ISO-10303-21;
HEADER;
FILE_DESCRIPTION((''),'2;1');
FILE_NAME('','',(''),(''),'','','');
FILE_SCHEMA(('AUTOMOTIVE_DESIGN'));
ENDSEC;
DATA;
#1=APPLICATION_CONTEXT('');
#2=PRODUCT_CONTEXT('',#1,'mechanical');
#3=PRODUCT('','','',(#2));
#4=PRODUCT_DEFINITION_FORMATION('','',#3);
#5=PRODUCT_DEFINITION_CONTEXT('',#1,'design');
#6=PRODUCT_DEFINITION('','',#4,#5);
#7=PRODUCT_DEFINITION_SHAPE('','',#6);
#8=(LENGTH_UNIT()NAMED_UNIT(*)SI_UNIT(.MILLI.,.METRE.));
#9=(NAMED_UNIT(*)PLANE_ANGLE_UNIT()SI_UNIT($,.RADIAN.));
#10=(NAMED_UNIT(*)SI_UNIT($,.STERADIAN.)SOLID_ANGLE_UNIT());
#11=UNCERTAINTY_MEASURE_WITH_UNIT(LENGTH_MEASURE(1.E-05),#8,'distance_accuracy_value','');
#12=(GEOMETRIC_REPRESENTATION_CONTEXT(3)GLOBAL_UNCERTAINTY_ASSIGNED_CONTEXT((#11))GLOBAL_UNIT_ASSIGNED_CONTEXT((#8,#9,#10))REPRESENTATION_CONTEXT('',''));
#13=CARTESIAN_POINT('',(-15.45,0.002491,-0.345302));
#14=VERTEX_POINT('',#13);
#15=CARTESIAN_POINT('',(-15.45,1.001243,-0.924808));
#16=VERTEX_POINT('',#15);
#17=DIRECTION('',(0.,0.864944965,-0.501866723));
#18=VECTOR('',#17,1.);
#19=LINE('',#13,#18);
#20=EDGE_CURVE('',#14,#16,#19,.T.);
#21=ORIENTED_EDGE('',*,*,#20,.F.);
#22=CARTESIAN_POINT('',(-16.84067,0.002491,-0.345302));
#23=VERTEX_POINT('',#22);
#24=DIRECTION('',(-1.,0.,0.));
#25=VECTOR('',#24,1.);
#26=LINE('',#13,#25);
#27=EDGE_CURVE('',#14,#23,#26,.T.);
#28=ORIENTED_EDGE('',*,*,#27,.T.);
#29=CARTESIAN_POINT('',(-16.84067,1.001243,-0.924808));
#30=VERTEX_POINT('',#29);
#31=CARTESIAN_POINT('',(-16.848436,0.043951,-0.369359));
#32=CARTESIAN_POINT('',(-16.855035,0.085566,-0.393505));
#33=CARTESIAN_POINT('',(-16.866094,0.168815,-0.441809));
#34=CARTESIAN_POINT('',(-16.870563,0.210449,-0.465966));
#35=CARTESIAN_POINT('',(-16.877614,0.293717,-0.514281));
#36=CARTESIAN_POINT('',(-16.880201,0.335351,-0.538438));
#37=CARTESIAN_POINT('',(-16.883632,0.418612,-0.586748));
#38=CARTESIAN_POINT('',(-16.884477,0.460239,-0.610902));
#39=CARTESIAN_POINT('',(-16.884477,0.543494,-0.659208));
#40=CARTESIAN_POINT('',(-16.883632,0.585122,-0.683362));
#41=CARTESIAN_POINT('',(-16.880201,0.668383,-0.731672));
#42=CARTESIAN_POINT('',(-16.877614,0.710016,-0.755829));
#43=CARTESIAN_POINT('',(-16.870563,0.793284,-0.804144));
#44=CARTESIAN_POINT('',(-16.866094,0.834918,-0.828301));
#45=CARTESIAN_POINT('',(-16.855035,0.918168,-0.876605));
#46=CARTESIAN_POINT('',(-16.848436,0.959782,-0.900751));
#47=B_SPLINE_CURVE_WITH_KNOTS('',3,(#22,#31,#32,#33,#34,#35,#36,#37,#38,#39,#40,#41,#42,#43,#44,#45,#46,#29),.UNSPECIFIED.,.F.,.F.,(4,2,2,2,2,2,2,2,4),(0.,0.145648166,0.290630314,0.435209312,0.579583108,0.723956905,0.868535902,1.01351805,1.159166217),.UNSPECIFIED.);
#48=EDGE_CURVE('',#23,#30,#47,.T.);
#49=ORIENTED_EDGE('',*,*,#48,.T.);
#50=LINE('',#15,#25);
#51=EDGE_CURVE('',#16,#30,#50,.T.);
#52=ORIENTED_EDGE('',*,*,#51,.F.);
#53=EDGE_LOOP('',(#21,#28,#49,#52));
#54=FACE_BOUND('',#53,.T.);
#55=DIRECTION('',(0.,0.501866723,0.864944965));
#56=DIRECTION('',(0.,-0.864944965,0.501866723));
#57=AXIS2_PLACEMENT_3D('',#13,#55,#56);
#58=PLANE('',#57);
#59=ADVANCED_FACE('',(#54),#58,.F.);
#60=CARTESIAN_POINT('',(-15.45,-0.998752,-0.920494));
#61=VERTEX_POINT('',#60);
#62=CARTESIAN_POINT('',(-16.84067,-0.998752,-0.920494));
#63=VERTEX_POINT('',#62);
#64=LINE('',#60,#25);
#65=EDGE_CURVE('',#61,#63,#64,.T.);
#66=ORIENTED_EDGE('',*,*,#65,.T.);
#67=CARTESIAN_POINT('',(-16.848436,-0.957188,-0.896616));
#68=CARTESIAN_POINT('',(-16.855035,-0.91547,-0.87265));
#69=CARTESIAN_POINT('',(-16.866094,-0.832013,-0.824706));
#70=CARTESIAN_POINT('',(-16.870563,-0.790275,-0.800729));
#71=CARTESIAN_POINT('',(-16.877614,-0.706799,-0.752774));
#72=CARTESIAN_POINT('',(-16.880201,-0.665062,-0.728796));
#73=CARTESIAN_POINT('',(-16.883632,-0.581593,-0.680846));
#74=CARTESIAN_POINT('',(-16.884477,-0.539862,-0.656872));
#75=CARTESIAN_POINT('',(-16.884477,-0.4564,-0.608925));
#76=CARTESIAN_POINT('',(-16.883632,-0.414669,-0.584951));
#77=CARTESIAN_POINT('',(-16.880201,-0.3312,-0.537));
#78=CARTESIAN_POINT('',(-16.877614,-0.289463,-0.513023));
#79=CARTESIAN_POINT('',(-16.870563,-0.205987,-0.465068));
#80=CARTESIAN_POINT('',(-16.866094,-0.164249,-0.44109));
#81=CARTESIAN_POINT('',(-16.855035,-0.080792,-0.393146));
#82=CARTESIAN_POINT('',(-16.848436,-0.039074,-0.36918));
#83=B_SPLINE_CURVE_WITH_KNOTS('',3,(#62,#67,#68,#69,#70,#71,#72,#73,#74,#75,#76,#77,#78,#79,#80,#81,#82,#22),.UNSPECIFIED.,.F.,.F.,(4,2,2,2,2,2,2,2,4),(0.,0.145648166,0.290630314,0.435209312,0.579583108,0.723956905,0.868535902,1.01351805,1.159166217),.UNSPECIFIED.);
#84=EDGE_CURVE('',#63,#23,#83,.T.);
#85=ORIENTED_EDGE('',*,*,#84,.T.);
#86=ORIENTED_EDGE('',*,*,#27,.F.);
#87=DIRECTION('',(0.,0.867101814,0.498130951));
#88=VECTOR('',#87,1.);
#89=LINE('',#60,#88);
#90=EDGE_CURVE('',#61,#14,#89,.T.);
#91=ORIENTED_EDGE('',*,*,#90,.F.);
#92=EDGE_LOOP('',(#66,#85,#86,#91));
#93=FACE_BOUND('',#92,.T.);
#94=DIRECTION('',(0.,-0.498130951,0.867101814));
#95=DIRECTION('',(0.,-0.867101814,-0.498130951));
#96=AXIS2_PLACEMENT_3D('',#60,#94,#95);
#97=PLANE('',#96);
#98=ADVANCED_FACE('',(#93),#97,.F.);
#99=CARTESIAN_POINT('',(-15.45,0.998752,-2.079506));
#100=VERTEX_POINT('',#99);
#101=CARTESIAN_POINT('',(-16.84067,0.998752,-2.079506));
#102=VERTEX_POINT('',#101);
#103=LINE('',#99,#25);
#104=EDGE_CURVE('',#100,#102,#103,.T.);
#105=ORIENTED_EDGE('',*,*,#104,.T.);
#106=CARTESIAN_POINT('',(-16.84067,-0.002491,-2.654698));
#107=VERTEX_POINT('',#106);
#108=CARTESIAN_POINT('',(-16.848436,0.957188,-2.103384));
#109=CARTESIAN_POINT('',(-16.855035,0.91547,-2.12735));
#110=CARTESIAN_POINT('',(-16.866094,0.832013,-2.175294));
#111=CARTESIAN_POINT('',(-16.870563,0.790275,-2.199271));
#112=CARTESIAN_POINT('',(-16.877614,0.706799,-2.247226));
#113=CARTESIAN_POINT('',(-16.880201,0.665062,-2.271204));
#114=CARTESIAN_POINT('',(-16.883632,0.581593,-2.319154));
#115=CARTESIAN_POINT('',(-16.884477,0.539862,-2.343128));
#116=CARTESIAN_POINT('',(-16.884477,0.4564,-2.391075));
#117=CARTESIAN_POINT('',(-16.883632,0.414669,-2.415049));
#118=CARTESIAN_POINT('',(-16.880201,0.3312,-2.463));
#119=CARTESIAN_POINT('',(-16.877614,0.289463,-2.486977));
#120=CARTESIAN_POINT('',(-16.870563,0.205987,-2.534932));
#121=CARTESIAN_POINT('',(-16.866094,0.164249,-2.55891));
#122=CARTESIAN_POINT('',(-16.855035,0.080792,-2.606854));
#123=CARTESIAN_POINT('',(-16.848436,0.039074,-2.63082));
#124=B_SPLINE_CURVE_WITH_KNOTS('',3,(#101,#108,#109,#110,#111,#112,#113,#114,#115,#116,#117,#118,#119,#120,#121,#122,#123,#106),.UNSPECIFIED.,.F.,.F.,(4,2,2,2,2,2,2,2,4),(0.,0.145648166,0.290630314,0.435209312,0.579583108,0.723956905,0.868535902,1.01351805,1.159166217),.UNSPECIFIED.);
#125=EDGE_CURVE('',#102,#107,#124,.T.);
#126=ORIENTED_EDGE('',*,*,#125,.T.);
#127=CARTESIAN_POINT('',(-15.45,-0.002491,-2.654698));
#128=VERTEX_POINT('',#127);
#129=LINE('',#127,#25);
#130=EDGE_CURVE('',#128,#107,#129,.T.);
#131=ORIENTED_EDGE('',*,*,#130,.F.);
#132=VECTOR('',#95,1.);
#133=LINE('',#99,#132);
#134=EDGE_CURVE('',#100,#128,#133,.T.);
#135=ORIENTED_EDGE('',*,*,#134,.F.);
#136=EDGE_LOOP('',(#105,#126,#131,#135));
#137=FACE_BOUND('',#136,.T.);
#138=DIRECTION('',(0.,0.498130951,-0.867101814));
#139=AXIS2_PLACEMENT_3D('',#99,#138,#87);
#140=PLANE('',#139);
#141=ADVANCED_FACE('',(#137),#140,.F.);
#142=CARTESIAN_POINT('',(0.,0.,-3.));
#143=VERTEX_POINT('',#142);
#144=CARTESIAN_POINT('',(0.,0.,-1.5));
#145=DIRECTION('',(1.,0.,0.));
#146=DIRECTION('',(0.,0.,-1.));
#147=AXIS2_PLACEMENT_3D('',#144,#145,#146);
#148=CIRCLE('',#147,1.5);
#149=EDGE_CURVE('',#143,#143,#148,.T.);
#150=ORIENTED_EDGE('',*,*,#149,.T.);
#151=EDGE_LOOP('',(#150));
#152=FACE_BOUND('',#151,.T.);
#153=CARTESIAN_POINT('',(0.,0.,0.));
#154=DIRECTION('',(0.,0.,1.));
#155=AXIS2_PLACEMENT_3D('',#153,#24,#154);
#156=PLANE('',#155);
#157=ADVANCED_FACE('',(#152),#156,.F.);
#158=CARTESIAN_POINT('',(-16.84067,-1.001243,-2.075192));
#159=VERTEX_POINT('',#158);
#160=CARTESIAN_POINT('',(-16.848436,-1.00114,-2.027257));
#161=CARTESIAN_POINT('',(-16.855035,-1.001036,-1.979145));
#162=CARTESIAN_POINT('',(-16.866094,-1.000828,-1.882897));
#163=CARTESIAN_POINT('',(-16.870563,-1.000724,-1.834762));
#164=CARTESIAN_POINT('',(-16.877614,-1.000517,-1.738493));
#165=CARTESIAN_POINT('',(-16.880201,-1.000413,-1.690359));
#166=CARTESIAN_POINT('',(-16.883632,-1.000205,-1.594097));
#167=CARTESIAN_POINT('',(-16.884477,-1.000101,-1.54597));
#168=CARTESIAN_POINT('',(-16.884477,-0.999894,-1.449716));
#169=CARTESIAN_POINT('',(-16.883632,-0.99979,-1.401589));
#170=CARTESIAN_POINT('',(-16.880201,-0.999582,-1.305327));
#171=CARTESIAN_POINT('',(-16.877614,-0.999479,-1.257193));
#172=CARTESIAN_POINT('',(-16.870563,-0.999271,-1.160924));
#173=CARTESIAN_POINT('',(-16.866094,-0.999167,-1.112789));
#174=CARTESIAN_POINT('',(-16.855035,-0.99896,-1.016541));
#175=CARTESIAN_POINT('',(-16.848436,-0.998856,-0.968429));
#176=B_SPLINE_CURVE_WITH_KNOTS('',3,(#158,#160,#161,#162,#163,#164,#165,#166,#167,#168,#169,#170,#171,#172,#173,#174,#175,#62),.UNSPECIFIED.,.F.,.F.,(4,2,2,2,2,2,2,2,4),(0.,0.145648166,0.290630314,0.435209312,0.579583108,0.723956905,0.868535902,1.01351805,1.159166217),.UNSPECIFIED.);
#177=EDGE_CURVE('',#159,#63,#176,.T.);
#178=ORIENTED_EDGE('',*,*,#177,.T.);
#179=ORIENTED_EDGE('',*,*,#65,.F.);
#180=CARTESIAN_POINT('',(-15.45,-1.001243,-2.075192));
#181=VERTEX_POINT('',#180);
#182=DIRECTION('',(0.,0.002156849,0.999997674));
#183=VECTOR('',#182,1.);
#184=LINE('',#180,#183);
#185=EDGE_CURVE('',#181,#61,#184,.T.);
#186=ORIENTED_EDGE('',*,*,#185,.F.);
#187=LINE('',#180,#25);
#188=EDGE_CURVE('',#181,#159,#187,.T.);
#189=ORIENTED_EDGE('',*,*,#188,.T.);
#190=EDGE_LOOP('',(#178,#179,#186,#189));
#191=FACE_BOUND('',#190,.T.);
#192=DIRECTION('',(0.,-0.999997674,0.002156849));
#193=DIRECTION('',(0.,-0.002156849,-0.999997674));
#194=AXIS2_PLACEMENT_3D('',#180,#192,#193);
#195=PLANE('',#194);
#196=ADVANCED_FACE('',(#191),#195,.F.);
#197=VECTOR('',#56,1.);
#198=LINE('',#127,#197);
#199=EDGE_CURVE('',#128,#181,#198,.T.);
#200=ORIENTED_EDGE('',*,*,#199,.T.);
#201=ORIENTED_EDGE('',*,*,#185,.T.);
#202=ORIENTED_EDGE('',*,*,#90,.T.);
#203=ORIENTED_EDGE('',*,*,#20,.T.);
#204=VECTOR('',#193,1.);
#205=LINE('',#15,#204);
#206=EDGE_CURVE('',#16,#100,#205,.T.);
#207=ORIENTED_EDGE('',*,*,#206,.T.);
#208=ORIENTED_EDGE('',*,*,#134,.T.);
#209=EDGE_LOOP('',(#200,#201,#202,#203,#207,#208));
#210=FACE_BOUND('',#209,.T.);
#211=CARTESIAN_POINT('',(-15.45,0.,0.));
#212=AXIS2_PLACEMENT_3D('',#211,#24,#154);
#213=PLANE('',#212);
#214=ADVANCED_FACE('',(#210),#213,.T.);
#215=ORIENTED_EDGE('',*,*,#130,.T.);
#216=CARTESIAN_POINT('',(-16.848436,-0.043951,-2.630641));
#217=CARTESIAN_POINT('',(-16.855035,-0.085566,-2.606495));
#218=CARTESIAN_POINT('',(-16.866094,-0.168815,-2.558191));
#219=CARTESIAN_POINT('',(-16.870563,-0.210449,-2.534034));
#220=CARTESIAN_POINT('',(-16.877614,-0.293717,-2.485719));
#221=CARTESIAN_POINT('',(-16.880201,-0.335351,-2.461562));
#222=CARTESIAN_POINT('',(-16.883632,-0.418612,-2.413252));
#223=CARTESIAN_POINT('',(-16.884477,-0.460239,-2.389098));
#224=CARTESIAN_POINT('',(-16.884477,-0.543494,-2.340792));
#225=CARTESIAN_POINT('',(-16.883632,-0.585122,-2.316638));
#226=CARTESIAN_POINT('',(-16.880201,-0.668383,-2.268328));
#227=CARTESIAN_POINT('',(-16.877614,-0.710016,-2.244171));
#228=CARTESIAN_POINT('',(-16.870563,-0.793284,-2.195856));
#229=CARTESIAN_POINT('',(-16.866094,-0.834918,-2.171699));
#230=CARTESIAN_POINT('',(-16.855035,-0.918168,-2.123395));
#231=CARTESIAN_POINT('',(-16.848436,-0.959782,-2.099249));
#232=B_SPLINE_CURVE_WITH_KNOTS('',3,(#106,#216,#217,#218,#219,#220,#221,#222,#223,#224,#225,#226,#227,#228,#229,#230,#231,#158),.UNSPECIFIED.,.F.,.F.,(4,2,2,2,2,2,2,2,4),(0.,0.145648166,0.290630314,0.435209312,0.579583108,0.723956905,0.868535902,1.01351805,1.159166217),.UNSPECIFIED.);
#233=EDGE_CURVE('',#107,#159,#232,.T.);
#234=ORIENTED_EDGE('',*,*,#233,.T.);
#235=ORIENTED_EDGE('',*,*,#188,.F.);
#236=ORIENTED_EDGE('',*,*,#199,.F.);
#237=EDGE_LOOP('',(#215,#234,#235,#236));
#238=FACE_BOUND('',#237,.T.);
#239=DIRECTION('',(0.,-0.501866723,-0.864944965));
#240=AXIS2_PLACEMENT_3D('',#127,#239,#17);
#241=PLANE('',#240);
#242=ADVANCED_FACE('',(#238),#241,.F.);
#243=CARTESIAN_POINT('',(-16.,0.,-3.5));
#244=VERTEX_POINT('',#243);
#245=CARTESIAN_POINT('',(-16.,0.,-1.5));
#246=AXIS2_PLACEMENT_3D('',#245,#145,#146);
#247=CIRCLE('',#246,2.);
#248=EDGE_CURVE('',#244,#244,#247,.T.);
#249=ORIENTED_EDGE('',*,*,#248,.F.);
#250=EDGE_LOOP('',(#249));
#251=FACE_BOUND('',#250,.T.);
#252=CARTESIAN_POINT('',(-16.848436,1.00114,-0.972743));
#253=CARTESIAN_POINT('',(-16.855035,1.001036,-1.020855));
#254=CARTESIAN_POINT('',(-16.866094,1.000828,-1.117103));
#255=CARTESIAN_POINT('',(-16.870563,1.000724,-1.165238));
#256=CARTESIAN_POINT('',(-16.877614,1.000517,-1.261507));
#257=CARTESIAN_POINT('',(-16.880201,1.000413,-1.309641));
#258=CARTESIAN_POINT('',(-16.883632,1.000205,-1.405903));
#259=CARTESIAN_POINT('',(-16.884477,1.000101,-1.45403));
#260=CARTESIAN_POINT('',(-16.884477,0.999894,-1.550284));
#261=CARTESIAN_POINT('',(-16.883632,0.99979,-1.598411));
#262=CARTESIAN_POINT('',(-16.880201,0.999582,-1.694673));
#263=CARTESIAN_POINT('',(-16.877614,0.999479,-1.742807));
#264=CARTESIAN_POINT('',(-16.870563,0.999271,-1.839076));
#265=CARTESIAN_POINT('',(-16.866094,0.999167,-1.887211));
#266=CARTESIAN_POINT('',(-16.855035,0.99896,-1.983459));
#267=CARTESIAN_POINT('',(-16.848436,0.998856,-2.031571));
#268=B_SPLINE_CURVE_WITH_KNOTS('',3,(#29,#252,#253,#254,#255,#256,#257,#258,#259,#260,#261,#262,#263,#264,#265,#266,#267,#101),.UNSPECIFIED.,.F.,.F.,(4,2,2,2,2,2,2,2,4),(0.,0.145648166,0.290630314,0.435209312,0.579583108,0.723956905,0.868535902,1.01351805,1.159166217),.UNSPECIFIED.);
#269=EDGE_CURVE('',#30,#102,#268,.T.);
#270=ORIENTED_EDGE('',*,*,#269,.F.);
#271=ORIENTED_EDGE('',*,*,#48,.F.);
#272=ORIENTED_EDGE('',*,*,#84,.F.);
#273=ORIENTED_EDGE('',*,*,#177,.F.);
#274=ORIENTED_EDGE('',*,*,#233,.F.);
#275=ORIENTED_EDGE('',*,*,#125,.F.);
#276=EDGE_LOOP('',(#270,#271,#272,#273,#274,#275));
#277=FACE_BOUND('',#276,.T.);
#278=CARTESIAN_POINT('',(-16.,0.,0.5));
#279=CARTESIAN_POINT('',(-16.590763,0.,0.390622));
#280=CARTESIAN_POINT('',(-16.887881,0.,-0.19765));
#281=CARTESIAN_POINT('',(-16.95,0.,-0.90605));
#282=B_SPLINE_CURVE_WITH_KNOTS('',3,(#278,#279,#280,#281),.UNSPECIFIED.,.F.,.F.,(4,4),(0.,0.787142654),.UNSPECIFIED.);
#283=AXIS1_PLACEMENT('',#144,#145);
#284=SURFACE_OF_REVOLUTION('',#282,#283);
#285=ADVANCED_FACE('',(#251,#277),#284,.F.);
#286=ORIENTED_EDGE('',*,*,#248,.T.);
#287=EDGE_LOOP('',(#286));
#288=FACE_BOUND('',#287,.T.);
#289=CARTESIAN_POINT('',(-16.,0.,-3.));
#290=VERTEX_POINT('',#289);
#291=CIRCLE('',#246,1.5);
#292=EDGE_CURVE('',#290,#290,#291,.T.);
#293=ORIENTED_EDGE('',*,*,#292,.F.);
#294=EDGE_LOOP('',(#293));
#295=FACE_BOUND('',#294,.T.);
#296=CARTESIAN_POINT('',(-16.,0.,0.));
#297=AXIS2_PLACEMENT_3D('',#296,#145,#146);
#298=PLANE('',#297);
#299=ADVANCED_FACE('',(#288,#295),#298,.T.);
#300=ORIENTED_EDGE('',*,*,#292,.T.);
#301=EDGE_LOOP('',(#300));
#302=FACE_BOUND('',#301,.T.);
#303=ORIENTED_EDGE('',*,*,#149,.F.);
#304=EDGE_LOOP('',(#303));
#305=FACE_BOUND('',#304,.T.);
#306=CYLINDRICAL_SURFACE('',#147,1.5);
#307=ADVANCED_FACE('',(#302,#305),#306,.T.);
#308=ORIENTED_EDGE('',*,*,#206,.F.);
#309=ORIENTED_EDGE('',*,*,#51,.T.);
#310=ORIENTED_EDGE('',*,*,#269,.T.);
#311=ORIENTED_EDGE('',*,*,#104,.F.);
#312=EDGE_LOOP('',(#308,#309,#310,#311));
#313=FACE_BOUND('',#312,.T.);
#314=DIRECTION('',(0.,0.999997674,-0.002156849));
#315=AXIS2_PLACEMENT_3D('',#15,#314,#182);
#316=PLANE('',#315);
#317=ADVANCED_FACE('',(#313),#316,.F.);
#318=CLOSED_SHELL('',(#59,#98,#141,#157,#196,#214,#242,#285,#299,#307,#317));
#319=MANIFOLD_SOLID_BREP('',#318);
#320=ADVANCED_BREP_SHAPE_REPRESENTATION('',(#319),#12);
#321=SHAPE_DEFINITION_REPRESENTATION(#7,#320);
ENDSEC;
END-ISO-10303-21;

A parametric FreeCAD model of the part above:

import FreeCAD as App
import Part
import Sketcher
Q = App.Units.Quantity

doc = App.newDocument("Part")
body = doc.addObject("PartDesign::Body", "Body")

# Sketch on XZ plane
sketch1 = doc.addObject("Sketcher::SketchObject", "Sketch")
body.addObject(sketch1)
sketch1.AttachmentSupport = (doc.XZ_Plane, [""])
sketch1.MapMode = "FlatFace"
sketch1.addGeometry(Part.BSplineCurve([App.Vector(-16, 0.5, 0), App.Vector(-16.590763, 0.390622, 0), App.Vector(-16.887881, -0.19765, 0), App.Vector(-16.95, -0.90605, 0)], [4, 4], [0, 0.787142654], False, 3, [1, 1, 1, 1], False), False)
sketch1.addGeometry(Part.LineSegment(App.Vector(-16, 0.5, 0), App.Vector(-16, 0, 0)), False)
sketch1.addGeometry(Part.LineSegment(App.Vector(-16, 0, 0), App.Vector(0, 0, 0)), False)
sketch1.addGeometry(Part.LineSegment(App.Vector(0, 0, 0), App.Vector(0, -1.5, 0)), False)
sketch1.addGeometry(Part.LineSegment(App.Vector(0, -1.5, 0), App.Vector(-16.95, -1.5, 0)), False)
sketch1.addGeometry(Part.LineSegment(App.Vector(-16.95, -1.5, 0), App.Vector(-16.95, -0.90605, 0)), False)
sketch1.addGeometry(Part.LineSegment(App.Vector(0, -1.5, 0), App.Vector(-16.95, -1.5, 0)), True)  # axis
sketch1.addConstraint(Sketcher.Constraint("Block", 0))
sketch1.addConstraint(Sketcher.Constraint("Coincident", 0, 1, 1, 1))
sketch1.addConstraint(Sketcher.Constraint("Coincident", 1, 2, 2, 1))
sketch1.addConstraint(Sketcher.Constraint("Coincident", 2, 2, 3, 1))
sketch1.addConstraint(Sketcher.Constraint("Coincident", 3, 2, 4, 1))
sketch1.addConstraint(Sketcher.Constraint("Coincident", 4, 2, 5, 1))
sketch1.addConstraint(Sketcher.Constraint("Coincident", 5, 2, 0, 2))
sketch1.addConstraint(Sketcher.Constraint("Vertical", 1))
sketch1.addConstraint(Sketcher.Constraint("Horizontal", 2))
sketch1.addConstraint(Sketcher.Constraint("Vertical", 3))
sketch1.addConstraint(Sketcher.Constraint("Horizontal", 4))
sketch1.addConstraint(Sketcher.Constraint("Vertical", 5))
sketch1.addConstraint(Sketcher.Constraint("Horizontal", 6))
sketch1.addConstraint(Sketcher.Constraint("Coincident", 2, 2, -1, 1))
sketch1.addConstraint(Sketcher.Constraint("Coincident", 6, 1, 3, 2))
sketch1.addConstraint(Sketcher.Constraint("Vertical", 5, 2, 6, 2))
sketch1.addConstraint(Sketcher.Constraint("DistanceY", 3, 2, 3, 1, Q("1.5 mm")))
revolution = doc.addObject("PartDesign::Revolution", "Revolution")
body.addObject(revolution)
revolution.Profile = sketch1
revolution.ReferenceAxis = (sketch1, ["Axis0"])
revolution.Angle = 360

# Sketch on YZ plane
sketch2 = doc.addObject("Sketcher::SketchObject", "Sketch001")
body.addObject(sketch2)
sketch2.AttachmentSupport = (doc.YZ_Plane, [""])
sketch2.MapMode = "FlatFace"
sketch2.AttachmentOffset = App.Placement(App.Vector(0, 0, -16.95), App.Rotation())
sketch2.addGeometry(Part.LineSegment(App.Vector(1.001243, -0.924808, 0), App.Vector(0.998752, -2.079506, 0)), False)
sketch2.addGeometry(Part.LineSegment(App.Vector(0.998752, -2.079506, 0), App.Vector(-0.002491, -2.654698, 0)), False)
sketch2.addGeometry(Part.LineSegment(App.Vector(-0.002491, -2.654698, 0), App.Vector(-1.001243, -2.075192, 0)), False)
sketch2.addGeometry(Part.LineSegment(App.Vector(-1.001243, -2.075192, 0), App.Vector(-0.998752, -0.920494, 0)), False)
sketch2.addGeometry(Part.LineSegment(App.Vector(-0.998752, -0.920494, 0), App.Vector(0.002491, -0.345302, 0)), False)
sketch2.addGeometry(Part.LineSegment(App.Vector(0.002491, -0.345302, 0), App.Vector(1.001243, -0.924808, 0)), False)
sketch2.addGeometry(Part.Circle(App.Vector(0, -1.5, 0), App.Vector(0, 0, 1), 0.59395), False)
sketch2.addConstraint(Sketcher.Constraint("Coincident", 0, 2, 1, 1))
sketch2.addConstraint(Sketcher.Constraint("Coincident", 1, 2, 2, 1))
sketch2.addConstraint(Sketcher.Constraint("Coincident", 2, 2, 3, 1))
sketch2.addConstraint(Sketcher.Constraint("Coincident", 3, 2, 4, 1))
sketch2.addConstraint(Sketcher.Constraint("Coincident", 4, 2, 5, 1))
sketch2.addConstraint(Sketcher.Constraint("Coincident", 5, 2, 0, 1))
sketch2.addConstraint(Sketcher.Constraint("PointOnObject", 6, 3, -2))
sketch2.addConstraint(Sketcher.Constraint("Parallel", 0, 3))
sketch2.addConstraint(Sketcher.Constraint("Parallel", 1, 4))
sketch2.addConstraint(Sketcher.Constraint("Parallel", 2, 5))
sketch2.addConstraint(Sketcher.Constraint("Equal", 0, 1))
sketch2.addConstraint(Sketcher.Constraint("Equal", 1, 2))
sketch2.addConstraint(Sketcher.Constraint("Equal", 2, 3))
sketch2.addConstraint(Sketcher.Constraint("Diameter", 6, Q("1.187901 mm")))
sketch2.addConstraint(Sketcher.Constraint("DistanceY", 6, 3, -1, 1, Q("1.5 mm")))
sketch2.addConstraint(Sketcher.Constraint("Distance", 0, Q("1.154701 mm")))
sketch2.addConstraint(Sketcher.Constraint("DistanceX", 1, 2, -1, 1, Q("0.002491 mm")))
sketch2.addConstraint(Sketcher.Constraint("DistanceX", -1, 1, 4, 2, Q("0.002491 mm")))
sketch2.addConstraint(Sketcher.Constraint("DistanceX", 2, 2, 3, 2, Q("0.002491 mm")))
sketch2.addConstraint(Sketcher.Constraint("DistanceX", 3, 2, 1, 2, Q("0.996262 mm")))
sketch2.addConstraint(Sketcher.Constraint("DistanceY", 0, 2, -1, 1, Q("2.079506 mm")))
pocket1 = doc.addObject("PartDesign::Pocket", "Pocket")
body.addObject(pocket1)
pocket1.Profile = sketch2
pocket1.Length = 1.5
pocket1.Reversed = True

# Sketch on YZ plane
sketch3 = doc.addObject("Sketcher::SketchObject", "Sketch002")
body.addObject(sketch3)
sketch3.AttachmentSupport = (doc.YZ_Plane, [""])
sketch3.MapMode = "FlatFace"
sketch3.AttachmentOffset = App.Placement(App.Vector(0, 0, -16.95), App.Rotation())
sketch3.addGeometry(Part.Circle(App.Vector(0, -1.5, 0), App.Vector(0, 0, 1), 0.59395), False)
sketch3.addConstraint(Sketcher.Constraint("PointOnObject", 0, 3, -2))
sketch3.addConstraint(Sketcher.Constraint("Diameter", 0, Q("1.187901 mm")))
sketch3.addConstraint(Sketcher.Constraint("DistanceY", 0, 3, -1, 1, Q("1.5 mm")))
pocket2 = doc.addObject("PartDesign::Pocket", "Pocket001")
body.addObject(pocket2)
pocket2.Profile = sketch3
pocket2.Length = 1.5
pocket2.Reversed = True

doc.recompute()
